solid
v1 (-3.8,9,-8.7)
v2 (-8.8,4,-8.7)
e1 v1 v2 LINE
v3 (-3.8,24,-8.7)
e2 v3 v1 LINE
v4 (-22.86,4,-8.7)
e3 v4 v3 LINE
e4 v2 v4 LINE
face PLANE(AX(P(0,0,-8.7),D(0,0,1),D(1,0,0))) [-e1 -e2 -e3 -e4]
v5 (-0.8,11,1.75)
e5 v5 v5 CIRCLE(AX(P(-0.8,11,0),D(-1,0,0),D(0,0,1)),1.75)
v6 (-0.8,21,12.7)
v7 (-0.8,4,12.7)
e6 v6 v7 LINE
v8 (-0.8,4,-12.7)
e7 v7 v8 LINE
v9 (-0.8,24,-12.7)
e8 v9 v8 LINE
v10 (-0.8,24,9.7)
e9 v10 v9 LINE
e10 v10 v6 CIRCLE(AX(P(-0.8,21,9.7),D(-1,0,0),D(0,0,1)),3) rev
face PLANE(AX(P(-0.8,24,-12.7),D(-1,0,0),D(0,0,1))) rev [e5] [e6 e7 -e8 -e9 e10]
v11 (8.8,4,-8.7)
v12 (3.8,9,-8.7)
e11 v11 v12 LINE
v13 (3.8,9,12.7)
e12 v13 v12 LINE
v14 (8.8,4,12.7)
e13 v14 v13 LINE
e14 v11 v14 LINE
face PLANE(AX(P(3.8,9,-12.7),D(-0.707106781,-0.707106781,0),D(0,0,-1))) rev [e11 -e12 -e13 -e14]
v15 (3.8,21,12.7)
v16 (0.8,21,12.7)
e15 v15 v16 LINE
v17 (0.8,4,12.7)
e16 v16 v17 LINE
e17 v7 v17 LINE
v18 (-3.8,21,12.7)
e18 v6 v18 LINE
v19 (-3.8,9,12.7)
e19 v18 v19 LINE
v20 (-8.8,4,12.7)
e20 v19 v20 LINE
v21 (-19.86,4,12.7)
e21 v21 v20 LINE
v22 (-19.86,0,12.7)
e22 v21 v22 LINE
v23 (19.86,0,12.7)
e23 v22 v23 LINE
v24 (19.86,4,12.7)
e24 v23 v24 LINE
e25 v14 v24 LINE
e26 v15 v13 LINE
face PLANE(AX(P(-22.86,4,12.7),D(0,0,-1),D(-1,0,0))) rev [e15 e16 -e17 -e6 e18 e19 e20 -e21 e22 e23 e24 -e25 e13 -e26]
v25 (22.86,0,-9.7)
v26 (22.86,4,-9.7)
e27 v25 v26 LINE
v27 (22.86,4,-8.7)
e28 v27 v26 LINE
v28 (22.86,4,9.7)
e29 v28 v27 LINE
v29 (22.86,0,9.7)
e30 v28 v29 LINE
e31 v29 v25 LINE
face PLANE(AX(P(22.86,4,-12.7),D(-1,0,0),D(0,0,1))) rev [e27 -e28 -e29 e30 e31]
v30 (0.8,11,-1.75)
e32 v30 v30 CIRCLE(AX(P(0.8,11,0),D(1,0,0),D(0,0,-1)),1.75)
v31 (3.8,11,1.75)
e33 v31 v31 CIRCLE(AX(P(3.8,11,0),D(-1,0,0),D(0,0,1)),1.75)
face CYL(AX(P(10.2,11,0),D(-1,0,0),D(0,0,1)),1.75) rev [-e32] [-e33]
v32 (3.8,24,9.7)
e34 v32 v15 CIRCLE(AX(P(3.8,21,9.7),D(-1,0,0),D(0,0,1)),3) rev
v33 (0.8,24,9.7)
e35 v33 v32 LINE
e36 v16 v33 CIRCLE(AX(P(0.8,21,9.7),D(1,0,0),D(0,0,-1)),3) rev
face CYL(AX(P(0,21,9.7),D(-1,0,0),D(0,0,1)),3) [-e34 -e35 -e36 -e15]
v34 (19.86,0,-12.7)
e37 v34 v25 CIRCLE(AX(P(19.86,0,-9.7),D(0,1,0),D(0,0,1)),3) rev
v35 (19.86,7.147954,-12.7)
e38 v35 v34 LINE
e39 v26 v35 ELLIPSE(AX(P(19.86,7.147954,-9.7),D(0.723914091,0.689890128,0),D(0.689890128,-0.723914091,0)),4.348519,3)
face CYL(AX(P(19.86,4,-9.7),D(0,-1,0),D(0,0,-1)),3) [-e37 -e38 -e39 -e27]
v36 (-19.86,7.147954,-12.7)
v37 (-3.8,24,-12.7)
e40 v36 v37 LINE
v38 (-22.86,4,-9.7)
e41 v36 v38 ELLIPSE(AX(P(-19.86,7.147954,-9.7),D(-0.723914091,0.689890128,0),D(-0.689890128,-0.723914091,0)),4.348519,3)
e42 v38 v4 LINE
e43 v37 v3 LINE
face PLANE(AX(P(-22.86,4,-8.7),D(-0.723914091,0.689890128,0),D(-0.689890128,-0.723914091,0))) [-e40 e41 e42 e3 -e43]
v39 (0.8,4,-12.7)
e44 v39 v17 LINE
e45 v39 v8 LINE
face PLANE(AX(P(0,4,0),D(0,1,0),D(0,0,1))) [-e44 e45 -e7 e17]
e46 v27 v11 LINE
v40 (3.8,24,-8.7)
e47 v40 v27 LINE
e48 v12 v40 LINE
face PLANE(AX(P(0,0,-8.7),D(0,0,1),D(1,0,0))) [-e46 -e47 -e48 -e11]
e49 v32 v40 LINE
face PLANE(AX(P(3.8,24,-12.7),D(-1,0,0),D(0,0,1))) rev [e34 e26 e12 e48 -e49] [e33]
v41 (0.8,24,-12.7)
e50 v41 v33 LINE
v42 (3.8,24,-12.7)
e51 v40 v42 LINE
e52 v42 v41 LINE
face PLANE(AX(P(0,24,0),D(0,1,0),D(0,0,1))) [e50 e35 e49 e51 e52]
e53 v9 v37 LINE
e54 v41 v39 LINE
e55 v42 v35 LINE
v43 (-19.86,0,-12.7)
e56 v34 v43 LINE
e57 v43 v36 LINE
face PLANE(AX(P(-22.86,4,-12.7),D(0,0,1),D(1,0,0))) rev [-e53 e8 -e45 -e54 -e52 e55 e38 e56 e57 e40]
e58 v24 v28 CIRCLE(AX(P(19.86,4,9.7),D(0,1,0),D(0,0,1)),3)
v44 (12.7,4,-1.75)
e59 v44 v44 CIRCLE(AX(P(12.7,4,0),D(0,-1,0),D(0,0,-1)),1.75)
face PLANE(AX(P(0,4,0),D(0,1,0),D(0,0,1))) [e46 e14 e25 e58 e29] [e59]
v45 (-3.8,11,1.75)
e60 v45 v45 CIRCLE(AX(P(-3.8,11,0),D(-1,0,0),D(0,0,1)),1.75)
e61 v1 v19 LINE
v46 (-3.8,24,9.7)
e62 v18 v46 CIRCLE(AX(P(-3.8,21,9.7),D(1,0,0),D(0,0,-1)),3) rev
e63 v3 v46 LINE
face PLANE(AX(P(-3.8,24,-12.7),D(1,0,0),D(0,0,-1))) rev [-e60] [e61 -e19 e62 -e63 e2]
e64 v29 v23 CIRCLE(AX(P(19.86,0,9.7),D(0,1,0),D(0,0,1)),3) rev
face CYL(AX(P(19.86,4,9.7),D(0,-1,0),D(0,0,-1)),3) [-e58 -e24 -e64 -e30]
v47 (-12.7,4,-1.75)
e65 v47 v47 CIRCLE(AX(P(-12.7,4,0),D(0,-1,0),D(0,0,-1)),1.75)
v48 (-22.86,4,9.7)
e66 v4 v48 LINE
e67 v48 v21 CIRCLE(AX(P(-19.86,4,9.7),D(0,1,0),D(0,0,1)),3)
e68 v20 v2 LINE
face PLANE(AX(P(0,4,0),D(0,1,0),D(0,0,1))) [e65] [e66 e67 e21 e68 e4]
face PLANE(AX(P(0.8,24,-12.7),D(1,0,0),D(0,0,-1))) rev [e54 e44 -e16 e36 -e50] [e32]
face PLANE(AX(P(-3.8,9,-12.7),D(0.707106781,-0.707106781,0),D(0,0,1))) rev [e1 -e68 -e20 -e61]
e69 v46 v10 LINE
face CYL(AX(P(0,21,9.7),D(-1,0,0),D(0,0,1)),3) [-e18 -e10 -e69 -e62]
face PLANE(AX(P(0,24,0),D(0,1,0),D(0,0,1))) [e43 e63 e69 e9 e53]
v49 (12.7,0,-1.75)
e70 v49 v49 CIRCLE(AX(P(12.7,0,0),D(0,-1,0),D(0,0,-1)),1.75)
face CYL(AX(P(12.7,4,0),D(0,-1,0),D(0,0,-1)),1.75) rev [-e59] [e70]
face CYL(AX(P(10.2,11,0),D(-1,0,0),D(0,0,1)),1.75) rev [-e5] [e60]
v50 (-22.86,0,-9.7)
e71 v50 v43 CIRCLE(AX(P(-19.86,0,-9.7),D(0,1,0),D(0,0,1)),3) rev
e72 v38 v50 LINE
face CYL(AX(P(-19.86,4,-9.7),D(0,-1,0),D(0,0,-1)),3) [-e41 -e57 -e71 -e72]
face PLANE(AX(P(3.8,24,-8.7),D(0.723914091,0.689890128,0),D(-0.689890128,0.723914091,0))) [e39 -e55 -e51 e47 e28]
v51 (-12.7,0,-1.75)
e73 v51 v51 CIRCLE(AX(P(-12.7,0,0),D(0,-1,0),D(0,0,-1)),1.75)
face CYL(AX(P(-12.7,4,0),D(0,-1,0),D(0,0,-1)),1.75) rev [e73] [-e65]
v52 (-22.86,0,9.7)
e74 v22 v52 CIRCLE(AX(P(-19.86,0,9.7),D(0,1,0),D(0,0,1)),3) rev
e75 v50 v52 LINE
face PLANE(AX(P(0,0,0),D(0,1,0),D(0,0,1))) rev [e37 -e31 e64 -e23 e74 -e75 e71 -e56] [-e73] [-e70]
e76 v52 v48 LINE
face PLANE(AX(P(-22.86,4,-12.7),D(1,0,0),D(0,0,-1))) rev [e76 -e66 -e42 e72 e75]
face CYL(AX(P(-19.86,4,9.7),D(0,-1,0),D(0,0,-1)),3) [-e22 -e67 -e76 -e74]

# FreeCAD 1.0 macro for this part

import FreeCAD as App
import Part
import Sketcher
Q = App.Units.Quantity


def edges_at(feature, points):
    """Names of the edges that pass closest to the given points."""
    edges = feature.Shape.Edges
    near = lambda p: min(range(len(edges)), key=lambda i: edges[i].distToShape(Part.Vertex(*p))[0])
    return sorted({f"Edge{near(p) + 1}" for p in points})

doc = App.newDocument("Part")
body = doc.addObject("PartDesign::Body", "Body")

# Sketch on XZ plane
sketch1 = doc.addObject("Sketcher::SketchObject", "Sketch")
body.addObject(sketch1)
sketch1.AttachmentSupport = (doc.XZ_Plane, [""])
sketch1.MapMode = "FlatFace"
sketch1.addGeometry([
    Part.LineSegment(App.Vector(-23, -13, 0), App.Vector(-23, 13, 0)),
    Part.LineSegment(App.Vector(-23, 13, 0), App.Vector(23, 13, 0)),
    Part.LineSegment(App.Vector(23, 13, 0), App.Vector(23, -13, 0)),
    Part.LineSegment(App.Vector(23, -13, 0), App.Vector(-23, -13, 0)),
], False)
sketch1.addConstraint([
    Sketcher.Constraint("Coincident", 0, 2, 1, 1),
    Sketcher.Constraint("Coincident", 1, 2, 2, 1),
    Sketcher.Constraint("Coincident", 2, 2, 3, 1),
    Sketcher.Constraint("Coincident", 3, 2, 0, 1),
    Sketcher.Constraint("Vertical", 0),
    Sketcher.Constraint("Horizontal", 1),
    Sketcher.Constraint("Vertical", 2),
    Sketcher.Constraint("Horizontal", 3),
    Sketcher.Constraint("Symmetric", 0, 2, 2, 2, -1, 1),
    Sketcher.Constraint("DistanceY", 0, 1, 0, 2, Q("25.4 mm")),
    Sketcher.Constraint("DistanceX", 1, 1, 1, 2, Q("45.72 mm")),
])
pad1 = doc.addObject("PartDesign::Pad", "Pad")
body.addObject(pad1)
pad1.Profile = sketch1
pad1.Length = 4
pad1.Reversed = True

# Sketch on XZ plane
sketch2 = doc.addObject("Sketcher::SketchObject", "Sketch001")
body.addObject(sketch2)
sketch2.AttachmentSupport = (doc.XZ_Plane, [""])
sketch2.MapMode = "FlatFace"
sketch2.AttachmentOffset = App.Placement(App.Vector(0, 0, -4), App.Rotation())
sketch2.addGeometry([
    Part.LineSegment(App.Vector(-3.8, -12.7, 0), App.Vector(-3.8, 12.7, 0)),  # 0
    Part.LineSegment(App.Vector(-3.8, 12.7, 0), App.Vector(-0.8, 12.7, 0)),  # 1
    Part.LineSegment(App.Vector(-0.8, 12.7, 0), App.Vector(-0.8, -12.7, 0)),  # 2
    Part.LineSegment(App.Vector(-0.8, -12.7, 0), App.Vector(-3.8, -12.7, 0)),  # 3
    Part.LineSegment(App.Vector(0.8, -12.7, 0), App.Vector(0.8, 12.7, 0)),  # 4
    Part.LineSegment(App.Vector(0.8, 12.7, 0), App.Vector(3.8, 12.7, 0)),  # 5
    Part.LineSegment(App.Vector(3.8, 12.7, 0), App.Vector(3.8, -12.7, 0)),  # 6
    Part.LineSegment(App.Vector(3.8, -12.7, 0), App.Vector(0.8, -12.7, 0)),  # 7
], False)
sketch2.addConstraint([
    Sketcher.Constraint("Coincident", 0, 2, 1, 1),
    Sketcher.Constraint("Coincident", 1, 2, 2, 1),
    Sketcher.Constraint("Coincident", 2, 2, 3, 1),
    Sketcher.Constraint("Coincident", 3, 2, 0, 1),
    Sketcher.Constraint("Coincident", 4, 2, 5, 1),
    Sketcher.Constraint("Coincident", 5, 2, 6, 1),
    Sketcher.Constraint("Coincident", 6, 2, 7, 1),
    Sketcher.Constraint("Coincident", 7, 2, 4, 1),
    Sketcher.Constraint("Vertical", 0),
    Sketcher.Constraint("Horizontal", 1),
    Sketcher.Constraint("Vertical", 2),
    Sketcher.Constraint("Horizontal", 3),
    Sketcher.Constraint("Vertical", 4),
    Sketcher.Constraint("Horizontal", 5),
    Sketcher.Constraint("Vertical", 6),
    Sketcher.Constraint("Horizontal", 7),
    Sketcher.Constraint("Symmetric", 2, 2, 4, 2, -1, 1),
    Sketcher.Constraint("Symmetric", 0, 2, 6, 2, -1, 1),
    Sketcher.Constraint("Horizontal", 1, 2, 4, 2),
    Sketcher.Constraint("DistanceX", 1, 1, 1, 2, Q("3 mm")),
    Sketcher.Constraint("DistanceY", 0, 1, 0, 2, Q("25.4 mm")),
    Sketcher.Constraint("DistanceX", 0, 2, -1, 1, Q("3.8 mm")),
])
pad2 = doc.addObject("PartDesign::Pad", "Pad001")
body.addObject(pad2)
pad2.Profile = sketch2
pad2.Length = 20
pad2.Reversed = True
doc.recompute()

chamfer = doc.addObject("PartDesign::Chamfer", "Chamfer")
body.addObject(chamfer)
chamfer.Base = (pad2, edges_at(pad2, [(-3.8, 4, 0), (3.8, 4, 0)]))
chamfer.Size = 5

# Sketch on XY plane
sketch3 = doc.addObject("Sketcher::SketchObject", "Sketch002")
body.addObject(sketch3)
sketch3.AttachmentSupport = (doc.XY_Plane, [""])
sketch3.MapMode = "FlatFace"
sketch3.AttachmentOffset = App.Placement(App.Vector(0, 0, -12.7), App.Rotation())
sketch3.addGeometry([
    Part.LineSegment(App.Vector(4, 24, 0), App.Vector(23, 4, 0)),  # 0
    Part.LineSegment(App.Vector(23, 4, 0), App.Vector(4, 4, 0)),  # 1
    Part.LineSegment(App.Vector(4, 4, 0), App.Vector(4, 24, 0)),  # 2
    Part.LineSegment(App.Vector(-4, 24, 0), App.Vector(-4, 4, 0)),  # 3
    Part.LineSegment(App.Vector(-4, 4, 0), App.Vector(-23, 4, 0)),  # 4
    Part.LineSegment(App.Vector(-23, 4, 0), App.Vector(-4, 24, 0)),  # 5
], False)
sketch3.addConstraint([
    Sketcher.Constraint("Coincident", 0, 2, 1, 1),
    Sketcher.Constraint("Coincident", 1, 2, 2, 1),
    Sketcher.Constraint("Coincident", 2, 2, 0, 1),
    Sketcher.Constraint("Coincident", 3, 2, 4, 1),
    Sketcher.Constraint("Coincident", 4, 2, 5, 1),
    Sketcher.Constraint("Coincident", 5, 2, 3, 1),
    Sketcher.Constraint("Horizontal", 1),
    Sketcher.Constraint("Vertical", 2),
    Sketcher.Constraint("Vertical", 3),
    Sketcher.Constraint("Horizontal", 4),
    Sketcher.Constraint("Symmetric", 1, 2, 3, 2, -2),
    Sketcher.Constraint("Horizontal", 2, 2, 5, 2),
    Sketcher.Constraint("Equal", 1, 4),
    Sketcher.Constraint("DistanceY", 2, 1, 2, 2, Q("20 mm")),
    Sketcher.Constraint("DistanceY", -1, 1, 0, 2, Q("4 mm")),
    Sketcher.Constraint("DistanceX", 1, 2, 1, 1, Q("19.06 mm")),
    Sketcher.Constraint("DistanceX", -1, 1, 1, 2, Q("3.8 mm")),
])
pad3 = doc.addObject("PartDesign::Pad", "Pad002")
body.addObject(pad3)
pad3.Profile = sketch3
pad3.Length = 4

# Sketch on XZ plane
sketch4 = doc.addObject("Sketcher::SketchObject", "Sketch003")
body.addObject(sketch4)
sketch4.AttachmentSupport = (doc.XZ_Plane, [""])
sketch4.MapMode = "FlatFace"
sketch4.addGeometry([
    Part.Circle(App.Vector(-12.7, 0, 0), App.Vector(0, 0, 1), 1.8),
    Part.Circle(App.Vector(12.7, 0, 0), App.Vector(0, 0, 1), 1.8),
], False)
sketch4.addConstraint([
    Sketcher.Constraint("Equal", 0, 1),
    Sketcher.Constraint("Symmetric", 0, 3, 1, 3, -1, 1),
    Sketcher.Constraint("PointOnObject", 0, 3, -1),
    Sketcher.Constraint("Diameter", 0, Q("3.5 mm")),
    Sketcher.Constraint("DistanceX", 0, 3, -1, 1, Q("12.7 mm")),
])
pocket1 = doc.addObject("PartDesign::Pocket", "Pocket")
body.addObject(pocket1)
pocket1.Profile = sketch4
pocket1.Length = 4

# Sketch on YZ plane
sketch5 = doc.addObject("Sketcher::SketchObject", "Sketch004")
body.addObject(sketch5)
sketch5.AttachmentSupport = (doc.YZ_Plane, [""])
sketch5.MapMode = "FlatFace"
sketch5.AttachmentOffset = App.Placement(App.Vector(0, 0, -3.8), App.Rotation())
sketch5.addGeometry(Part.Circle(App.Vector(11, 0, 0), App.Vector(0, 0, 1), 1.8), False)
sketch5.addConstraint([
    Sketcher.Constraint("PointOnObject", 0, 3, -1),
    Sketcher.Constraint("Diameter", 0, Q("3.5 mm")),
    Sketcher.Constraint("DistanceX", -1, 1, 0, 3, Q("11 mm")),
])
pocket2 = doc.addObject("PartDesign::Pocket", "Pocket001")
body.addObject(pocket2)
pocket2.Profile = sketch5
pocket2.Length = 14
pocket2.Reversed = True
doc.recompute()

fillet = doc.addObject("PartDesign::Fillet", "Fillet")
body.addObject(fillet)
fillet.Base = (pocket2, edges_at(pocket2, [
    (-2.3, 24, 12.7),
    (2.3, 24, 12.7),
    (22.86, 2, 12.7),
    (-22.86, 2, 12.7),
    (-22.86, 2, -12.7),
    (22.86, 2, -12.7),
]))
fillet.Radius = 3

doc.recompute()
